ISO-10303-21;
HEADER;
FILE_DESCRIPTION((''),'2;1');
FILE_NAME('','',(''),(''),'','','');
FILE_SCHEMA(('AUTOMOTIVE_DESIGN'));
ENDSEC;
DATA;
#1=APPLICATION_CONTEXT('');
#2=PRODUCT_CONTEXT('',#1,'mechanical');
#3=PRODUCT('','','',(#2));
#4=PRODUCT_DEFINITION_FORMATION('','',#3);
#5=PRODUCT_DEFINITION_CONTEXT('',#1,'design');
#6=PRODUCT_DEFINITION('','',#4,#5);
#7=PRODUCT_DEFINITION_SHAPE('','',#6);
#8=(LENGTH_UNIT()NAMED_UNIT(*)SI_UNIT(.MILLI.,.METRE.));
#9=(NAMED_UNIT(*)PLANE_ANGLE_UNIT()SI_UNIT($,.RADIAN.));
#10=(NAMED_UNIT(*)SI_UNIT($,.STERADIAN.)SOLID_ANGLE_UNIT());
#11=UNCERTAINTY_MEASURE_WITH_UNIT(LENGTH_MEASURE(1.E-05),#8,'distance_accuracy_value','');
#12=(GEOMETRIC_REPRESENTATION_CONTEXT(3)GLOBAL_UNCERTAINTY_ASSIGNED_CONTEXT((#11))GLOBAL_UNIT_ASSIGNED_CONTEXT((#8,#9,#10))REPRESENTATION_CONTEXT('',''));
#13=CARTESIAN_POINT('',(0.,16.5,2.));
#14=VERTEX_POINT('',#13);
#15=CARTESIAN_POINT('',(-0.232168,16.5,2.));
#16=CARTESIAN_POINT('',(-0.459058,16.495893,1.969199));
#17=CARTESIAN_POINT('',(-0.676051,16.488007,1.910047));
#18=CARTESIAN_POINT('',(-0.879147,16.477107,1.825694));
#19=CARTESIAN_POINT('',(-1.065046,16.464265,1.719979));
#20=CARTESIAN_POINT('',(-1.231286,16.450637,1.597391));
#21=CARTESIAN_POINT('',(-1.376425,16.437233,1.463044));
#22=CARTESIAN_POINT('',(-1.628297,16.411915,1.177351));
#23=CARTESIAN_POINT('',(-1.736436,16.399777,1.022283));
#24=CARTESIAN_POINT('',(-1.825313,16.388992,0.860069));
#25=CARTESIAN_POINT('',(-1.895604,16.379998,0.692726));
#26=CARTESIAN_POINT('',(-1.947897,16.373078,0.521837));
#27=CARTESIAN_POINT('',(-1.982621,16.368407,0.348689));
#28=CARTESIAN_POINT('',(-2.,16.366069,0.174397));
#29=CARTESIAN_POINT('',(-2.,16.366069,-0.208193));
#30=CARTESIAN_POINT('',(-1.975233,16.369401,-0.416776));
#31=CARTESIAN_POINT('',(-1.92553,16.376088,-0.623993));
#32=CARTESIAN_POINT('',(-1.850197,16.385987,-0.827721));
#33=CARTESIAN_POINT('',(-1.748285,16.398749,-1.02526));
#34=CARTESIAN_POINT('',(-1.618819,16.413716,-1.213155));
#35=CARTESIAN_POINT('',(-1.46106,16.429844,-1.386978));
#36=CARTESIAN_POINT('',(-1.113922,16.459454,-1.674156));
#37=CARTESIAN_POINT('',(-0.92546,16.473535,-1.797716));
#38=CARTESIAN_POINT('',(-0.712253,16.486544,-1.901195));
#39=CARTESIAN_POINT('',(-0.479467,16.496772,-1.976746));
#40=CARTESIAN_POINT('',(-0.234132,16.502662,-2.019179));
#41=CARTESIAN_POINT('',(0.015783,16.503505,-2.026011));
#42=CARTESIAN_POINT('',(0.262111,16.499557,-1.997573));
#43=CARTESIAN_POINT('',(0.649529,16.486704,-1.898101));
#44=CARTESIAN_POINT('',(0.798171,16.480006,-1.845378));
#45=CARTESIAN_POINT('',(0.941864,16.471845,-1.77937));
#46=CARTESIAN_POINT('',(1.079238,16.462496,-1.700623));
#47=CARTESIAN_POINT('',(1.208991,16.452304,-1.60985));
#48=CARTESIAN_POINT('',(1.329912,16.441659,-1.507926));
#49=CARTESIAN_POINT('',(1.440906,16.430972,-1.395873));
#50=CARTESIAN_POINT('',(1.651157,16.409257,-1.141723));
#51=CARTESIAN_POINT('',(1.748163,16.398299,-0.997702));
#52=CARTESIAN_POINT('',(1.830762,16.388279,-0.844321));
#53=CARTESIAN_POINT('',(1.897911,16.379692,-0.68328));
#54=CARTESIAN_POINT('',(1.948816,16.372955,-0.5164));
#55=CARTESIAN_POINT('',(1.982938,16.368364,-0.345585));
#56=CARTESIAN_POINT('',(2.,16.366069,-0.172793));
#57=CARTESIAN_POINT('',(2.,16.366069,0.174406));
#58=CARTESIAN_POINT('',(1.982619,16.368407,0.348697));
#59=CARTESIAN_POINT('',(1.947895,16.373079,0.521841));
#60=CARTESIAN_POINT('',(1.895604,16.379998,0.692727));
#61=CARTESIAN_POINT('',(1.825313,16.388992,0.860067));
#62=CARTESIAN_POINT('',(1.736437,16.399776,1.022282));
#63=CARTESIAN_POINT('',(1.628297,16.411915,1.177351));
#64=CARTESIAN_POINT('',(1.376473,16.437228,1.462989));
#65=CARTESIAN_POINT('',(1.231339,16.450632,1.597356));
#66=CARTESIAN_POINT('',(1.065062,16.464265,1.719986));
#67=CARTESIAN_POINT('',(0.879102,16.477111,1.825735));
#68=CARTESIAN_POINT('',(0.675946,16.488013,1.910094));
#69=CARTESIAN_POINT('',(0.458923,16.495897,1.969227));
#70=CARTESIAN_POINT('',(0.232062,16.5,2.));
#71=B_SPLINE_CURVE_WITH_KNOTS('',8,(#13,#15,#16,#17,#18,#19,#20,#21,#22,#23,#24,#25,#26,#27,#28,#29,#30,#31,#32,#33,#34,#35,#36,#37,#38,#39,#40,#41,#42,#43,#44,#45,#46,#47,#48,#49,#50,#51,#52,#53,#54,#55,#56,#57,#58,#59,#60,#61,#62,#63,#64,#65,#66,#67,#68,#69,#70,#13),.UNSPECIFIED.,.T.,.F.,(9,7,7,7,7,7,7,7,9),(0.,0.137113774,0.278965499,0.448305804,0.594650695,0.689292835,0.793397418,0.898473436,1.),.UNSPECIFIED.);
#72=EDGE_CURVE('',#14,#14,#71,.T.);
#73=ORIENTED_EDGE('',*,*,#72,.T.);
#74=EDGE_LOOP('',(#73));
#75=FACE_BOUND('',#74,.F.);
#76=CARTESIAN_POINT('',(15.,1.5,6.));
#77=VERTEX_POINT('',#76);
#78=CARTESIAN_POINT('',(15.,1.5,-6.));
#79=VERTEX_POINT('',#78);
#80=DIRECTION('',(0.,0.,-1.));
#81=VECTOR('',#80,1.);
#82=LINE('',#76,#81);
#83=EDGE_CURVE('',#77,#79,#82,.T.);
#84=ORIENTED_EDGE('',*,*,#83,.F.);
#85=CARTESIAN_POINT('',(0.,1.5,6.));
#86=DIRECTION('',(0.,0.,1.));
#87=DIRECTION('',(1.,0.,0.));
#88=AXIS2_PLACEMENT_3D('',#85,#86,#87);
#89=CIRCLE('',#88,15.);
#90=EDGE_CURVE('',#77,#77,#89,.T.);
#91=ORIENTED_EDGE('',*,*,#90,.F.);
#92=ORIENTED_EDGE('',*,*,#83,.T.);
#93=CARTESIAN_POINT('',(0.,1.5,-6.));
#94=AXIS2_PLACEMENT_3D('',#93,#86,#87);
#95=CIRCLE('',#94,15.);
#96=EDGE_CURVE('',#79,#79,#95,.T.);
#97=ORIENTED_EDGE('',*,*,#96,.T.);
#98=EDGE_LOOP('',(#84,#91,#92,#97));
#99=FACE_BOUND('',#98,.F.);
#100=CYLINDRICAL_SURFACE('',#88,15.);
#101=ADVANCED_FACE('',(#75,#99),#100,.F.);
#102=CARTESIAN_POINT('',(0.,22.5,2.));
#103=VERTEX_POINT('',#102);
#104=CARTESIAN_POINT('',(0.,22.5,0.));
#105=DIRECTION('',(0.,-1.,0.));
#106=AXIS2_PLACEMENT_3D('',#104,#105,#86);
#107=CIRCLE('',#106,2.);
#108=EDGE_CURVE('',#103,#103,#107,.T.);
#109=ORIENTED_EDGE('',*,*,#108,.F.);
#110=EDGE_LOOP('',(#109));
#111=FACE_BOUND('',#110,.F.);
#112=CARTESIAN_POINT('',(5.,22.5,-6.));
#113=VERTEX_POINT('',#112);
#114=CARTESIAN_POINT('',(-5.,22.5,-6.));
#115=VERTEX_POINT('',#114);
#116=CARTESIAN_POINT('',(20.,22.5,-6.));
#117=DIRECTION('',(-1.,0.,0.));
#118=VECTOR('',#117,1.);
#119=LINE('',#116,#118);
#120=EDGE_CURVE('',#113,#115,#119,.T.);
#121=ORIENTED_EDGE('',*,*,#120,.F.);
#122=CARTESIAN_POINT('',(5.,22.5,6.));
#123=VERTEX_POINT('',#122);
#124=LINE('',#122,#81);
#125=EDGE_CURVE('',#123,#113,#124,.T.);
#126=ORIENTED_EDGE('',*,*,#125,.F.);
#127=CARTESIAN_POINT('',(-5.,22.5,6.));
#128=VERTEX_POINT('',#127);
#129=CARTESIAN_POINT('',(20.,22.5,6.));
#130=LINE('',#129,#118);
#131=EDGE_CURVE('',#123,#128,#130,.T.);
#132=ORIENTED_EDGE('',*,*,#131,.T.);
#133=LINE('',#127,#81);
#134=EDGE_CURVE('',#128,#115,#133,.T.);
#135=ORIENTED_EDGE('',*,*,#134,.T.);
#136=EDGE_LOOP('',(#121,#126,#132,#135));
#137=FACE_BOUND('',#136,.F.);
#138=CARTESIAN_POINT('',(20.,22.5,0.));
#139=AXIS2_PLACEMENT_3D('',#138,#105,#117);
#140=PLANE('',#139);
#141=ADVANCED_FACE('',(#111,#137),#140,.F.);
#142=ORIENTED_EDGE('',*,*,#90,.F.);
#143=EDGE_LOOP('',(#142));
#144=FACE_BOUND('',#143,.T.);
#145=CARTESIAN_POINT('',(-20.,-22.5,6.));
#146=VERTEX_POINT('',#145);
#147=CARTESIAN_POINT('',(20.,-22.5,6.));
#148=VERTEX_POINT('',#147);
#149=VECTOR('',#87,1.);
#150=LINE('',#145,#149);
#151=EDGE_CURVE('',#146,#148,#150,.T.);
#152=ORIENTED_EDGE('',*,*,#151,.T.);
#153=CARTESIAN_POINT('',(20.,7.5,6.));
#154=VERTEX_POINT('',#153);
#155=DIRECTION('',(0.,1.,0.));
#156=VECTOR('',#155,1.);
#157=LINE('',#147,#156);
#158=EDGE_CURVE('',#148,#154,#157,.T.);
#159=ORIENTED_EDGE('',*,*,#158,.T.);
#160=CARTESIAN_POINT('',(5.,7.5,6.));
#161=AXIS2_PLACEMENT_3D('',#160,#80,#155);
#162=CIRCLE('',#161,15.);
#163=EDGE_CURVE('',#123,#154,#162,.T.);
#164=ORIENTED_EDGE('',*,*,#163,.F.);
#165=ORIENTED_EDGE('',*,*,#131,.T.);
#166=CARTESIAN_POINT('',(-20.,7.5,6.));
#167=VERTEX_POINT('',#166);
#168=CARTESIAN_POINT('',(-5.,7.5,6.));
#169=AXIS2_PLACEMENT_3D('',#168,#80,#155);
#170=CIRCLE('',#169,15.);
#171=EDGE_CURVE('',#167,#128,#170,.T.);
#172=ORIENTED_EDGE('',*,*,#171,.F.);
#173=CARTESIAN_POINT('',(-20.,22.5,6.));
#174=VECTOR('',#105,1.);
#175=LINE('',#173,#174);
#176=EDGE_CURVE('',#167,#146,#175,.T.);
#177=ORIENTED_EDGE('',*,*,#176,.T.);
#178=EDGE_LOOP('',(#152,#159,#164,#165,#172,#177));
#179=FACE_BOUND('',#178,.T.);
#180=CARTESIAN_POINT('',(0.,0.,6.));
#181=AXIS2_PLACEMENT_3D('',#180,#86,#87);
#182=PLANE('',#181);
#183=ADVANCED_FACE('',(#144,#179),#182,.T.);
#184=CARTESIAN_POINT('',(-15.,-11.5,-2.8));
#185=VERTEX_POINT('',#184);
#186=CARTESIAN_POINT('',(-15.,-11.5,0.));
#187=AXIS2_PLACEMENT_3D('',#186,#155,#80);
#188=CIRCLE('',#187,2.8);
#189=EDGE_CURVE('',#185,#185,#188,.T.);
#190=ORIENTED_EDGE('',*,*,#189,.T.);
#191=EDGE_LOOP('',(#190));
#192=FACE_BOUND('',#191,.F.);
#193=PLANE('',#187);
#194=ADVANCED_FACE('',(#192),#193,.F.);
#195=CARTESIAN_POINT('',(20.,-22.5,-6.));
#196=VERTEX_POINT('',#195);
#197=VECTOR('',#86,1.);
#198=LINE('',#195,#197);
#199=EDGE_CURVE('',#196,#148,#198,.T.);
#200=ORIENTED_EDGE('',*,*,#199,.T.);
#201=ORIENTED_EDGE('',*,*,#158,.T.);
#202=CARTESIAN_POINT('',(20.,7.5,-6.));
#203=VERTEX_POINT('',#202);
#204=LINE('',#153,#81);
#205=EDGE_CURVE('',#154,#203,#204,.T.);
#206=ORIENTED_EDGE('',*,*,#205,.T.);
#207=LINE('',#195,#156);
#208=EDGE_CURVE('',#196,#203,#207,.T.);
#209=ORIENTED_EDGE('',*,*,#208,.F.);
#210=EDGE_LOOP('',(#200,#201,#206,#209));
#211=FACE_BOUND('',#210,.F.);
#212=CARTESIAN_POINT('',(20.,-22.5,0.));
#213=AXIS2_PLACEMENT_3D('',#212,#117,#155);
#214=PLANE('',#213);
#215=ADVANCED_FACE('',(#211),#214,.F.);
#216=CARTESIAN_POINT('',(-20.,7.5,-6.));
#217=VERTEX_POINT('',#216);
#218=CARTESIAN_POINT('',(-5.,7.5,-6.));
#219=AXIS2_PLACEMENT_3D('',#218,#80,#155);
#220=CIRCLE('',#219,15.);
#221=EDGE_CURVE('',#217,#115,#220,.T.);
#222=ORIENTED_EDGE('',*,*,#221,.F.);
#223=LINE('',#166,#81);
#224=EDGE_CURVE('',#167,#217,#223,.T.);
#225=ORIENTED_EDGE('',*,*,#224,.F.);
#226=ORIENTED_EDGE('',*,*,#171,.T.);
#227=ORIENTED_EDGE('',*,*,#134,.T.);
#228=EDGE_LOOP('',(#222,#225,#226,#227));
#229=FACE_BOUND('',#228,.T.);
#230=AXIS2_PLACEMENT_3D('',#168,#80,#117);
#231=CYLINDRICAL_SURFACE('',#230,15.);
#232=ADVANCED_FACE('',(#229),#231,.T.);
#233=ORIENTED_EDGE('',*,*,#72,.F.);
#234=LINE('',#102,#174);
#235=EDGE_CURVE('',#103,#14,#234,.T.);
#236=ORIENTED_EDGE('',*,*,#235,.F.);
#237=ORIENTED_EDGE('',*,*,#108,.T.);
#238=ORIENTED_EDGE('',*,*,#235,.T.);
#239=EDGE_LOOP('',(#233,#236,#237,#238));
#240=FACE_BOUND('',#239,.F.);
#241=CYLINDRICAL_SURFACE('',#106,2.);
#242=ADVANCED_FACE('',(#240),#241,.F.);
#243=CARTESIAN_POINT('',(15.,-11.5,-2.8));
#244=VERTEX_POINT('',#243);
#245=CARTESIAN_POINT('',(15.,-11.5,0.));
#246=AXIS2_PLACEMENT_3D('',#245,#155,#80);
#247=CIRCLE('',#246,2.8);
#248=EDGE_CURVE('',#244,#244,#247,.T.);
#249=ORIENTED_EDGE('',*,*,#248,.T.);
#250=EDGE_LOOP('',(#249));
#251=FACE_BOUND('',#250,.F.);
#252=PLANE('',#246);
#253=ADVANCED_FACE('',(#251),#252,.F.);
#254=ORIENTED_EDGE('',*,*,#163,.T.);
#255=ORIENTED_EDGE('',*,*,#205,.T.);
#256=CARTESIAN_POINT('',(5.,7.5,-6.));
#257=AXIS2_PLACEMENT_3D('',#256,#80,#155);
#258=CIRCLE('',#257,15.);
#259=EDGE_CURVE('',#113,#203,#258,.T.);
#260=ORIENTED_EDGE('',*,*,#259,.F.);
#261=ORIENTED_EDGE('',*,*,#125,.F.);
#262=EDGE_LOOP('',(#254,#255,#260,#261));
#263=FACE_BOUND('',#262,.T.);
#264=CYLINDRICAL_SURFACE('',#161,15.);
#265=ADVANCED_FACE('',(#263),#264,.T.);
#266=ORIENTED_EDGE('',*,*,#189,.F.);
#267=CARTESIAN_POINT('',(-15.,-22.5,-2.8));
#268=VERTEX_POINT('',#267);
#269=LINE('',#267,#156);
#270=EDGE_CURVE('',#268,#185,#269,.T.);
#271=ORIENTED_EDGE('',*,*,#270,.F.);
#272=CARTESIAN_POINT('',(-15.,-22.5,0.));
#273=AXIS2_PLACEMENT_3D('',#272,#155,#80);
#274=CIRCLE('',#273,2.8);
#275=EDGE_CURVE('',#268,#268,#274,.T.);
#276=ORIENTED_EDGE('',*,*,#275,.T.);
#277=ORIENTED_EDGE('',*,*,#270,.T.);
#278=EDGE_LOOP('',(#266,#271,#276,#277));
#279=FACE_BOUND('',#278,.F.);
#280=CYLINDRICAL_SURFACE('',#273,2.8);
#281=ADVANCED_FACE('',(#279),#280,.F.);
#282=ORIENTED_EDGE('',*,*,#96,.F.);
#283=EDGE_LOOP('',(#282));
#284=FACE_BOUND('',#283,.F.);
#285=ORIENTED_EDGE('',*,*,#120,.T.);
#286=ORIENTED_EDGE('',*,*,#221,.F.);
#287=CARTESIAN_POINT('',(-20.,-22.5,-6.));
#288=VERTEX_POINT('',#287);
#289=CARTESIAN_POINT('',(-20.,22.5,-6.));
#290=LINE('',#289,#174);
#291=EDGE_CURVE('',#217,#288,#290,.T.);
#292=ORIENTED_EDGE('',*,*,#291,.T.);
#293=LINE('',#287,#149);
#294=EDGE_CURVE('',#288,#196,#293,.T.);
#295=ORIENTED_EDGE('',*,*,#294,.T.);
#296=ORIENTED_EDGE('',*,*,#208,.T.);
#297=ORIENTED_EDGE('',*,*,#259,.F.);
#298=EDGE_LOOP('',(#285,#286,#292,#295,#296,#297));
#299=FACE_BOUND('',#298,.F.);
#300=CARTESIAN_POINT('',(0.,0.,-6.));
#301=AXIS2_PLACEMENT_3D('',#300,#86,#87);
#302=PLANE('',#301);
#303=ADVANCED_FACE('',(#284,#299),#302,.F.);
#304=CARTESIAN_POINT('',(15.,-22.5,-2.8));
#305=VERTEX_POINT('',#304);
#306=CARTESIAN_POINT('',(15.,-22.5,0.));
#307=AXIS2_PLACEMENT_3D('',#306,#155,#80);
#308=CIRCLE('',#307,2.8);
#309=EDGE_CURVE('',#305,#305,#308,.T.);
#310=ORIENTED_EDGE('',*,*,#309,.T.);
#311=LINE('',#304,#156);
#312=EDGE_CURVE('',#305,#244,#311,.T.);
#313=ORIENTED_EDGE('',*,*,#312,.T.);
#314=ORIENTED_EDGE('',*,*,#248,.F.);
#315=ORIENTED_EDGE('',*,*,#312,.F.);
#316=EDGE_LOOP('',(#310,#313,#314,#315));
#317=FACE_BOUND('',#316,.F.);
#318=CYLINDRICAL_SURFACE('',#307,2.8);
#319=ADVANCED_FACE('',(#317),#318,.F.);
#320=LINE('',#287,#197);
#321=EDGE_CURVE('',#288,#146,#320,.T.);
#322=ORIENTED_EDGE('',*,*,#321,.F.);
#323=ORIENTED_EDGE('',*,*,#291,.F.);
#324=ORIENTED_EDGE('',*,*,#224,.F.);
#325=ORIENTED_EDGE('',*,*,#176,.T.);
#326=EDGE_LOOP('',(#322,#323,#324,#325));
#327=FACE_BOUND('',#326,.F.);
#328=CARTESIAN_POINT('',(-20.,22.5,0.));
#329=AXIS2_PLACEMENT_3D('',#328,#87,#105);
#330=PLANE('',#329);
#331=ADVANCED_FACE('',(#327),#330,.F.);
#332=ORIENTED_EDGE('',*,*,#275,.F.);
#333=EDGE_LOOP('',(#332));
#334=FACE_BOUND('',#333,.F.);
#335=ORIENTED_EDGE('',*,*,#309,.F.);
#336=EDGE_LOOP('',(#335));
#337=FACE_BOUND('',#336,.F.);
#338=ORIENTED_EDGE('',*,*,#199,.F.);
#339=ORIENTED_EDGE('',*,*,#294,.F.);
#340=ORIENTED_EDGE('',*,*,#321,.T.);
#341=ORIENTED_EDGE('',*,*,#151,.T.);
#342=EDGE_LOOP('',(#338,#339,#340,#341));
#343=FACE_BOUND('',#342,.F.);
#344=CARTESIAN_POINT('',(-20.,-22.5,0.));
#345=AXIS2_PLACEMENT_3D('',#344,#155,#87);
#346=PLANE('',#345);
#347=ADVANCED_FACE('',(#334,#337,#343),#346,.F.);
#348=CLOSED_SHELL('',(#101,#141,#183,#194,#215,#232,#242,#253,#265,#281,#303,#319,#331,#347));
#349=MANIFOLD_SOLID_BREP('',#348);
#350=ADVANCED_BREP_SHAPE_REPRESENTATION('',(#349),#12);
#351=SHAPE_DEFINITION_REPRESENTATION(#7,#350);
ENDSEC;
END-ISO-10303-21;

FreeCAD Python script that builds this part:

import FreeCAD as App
import Part
import Sketcher

V = App.Vector


def edges_at(feature, points):
    """Names of the edges that pass closest to the given points."""
    edges = feature.Shape.Edges
    near = lambda p: min(range(len(edges)), key=lambda i: edges[i].distToShape(Part.Vertex(*p))[0])
    return sorted({f"Edge{near(p) + 1}" for p in points})


def add_polygon(sketch, points):
    """Adds a closed chain of lines whose ends are joined by coincident constraints."""
    first, n = sketch.GeometryCount, len(points)
    for a, b in zip(points, points[1:] + points[:1]):
        sketch.addGeometry(Part.LineSegment(App.Vector(*a, 0), App.Vector(*b, 0)), False)
    for i in range(n):
        sketch.addConstraint(Sketcher.Constraint("Coincident", first + i, 2, first + (i + 1) % n, 1))

doc = App.newDocument("Part")
params = doc.addObject("Spreadsheet::Sheet", "Params")
for row, (alias, value) in enumerate([
    ("sketch1_width", "40 mm"),
    ("sketch1_height", "45 mm"),
    ("pad1_length", "12 mm"),
    ("sketch2_diameter", "30 mm"),
    ("sketch3_diameter", "5.6 mm"),
    ("hole_diameter", "5.6 mm"),
    ("hole_depth", "11 mm"),
    ("sketch4_diameter", "4 mm"),
    ("hole2_diameter", "4 mm"),
    ("hole2_depth", "11 mm"),
    ("fillet_radius", "15 mm"),
], start=1):
    params.set(f"A{row}", alias)
    params.set(f"B{row}", "=" + value)
    params.setAlias(f"B{row}", alias)

body = doc.addObject("PartDesign::Body", "Body")

sketch1 = body.newObject("Sketcher::SketchObject", "Sketch")
sketch1.AttachmentSupport = (doc.getObject("XY_Plane"), [""])
sketch1.MapMode = "FlatFace"
add_polygon(sketch1, [(-20, 22), (-20, -22), (20, -22), (20, 22)])
sketch1.addConstraint(Sketcher.Constraint("Vertical", 0))
sketch1.addConstraint(Sketcher.Constraint("Horizontal", 1))
sketch1.addConstraint(Sketcher.Constraint("Vertical", 2))
sketch1.addConstraint(Sketcher.Constraint("Horizontal", 3))
sketch1.addConstraint(Sketcher.Constraint("Symmetric", 0, 2, 2, 2, -1, 1))
sketch1.addConstraint(Sketcher.Constraint("DistanceX", 1, 1, 1, 2, 40.0))
sketch1.addConstraint(Sketcher.Constraint("DistanceY", 0, 2, 0, 1, 45.0))
sketch1.setExpression("Constraints[9]", "Params.sketch1_width")
sketch1.setExpression("Constraints[10]", "Params.sketch1_height")
pad1 = body.newObject("PartDesign::Pad", "Pad")
pad1.Profile = sketch1
pad1.setExpression("Length", "Params.pad1_length")
pad1.Midplane = True

sketch2 = body.newObject("Sketcher::SketchObject", "Sketch001")
sketch2.AttachmentSupport = (doc.getObject("XY_Plane"), [""])
sketch2.MapMode = "FlatFace"
sketch2.AttachmentOffset = App.Placement(V(0, 0, 6), App.Rotation())
sketch2.addGeometry(Part.Circle(V(0, 2, 0), V(0, 0, 1), 15), False)
sketch2.addConstraint(Sketcher.Constraint("PointOnObject", 0, 3, -2))
sketch2.addConstraint(Sketcher.Constraint("Diameter", 0, 30.0))
sketch2.addConstraint(Sketcher.Constraint("DistanceY", -1, 1, 0, 3, 1.5))
sketch2.setExpression("Constraints[1]", "Params.sketch2_diameter")
pocket1 = body.newObject("PartDesign::Pocket", "Pocket")
pocket1.Profile = sketch2
pocket1.Type = "ThroughAll"

sketch3 = body.newObject("Sketcher::SketchObject", "Sketch002")
sketch3.AttachmentSupport = (doc.getObject("XZ_Plane"), [""])
sketch3.MapMode = "FlatFace"
sketch3.AttachmentOffset = App.Placement(V(0, 0, 22.5), App.Rotation())
sketch3.addGeometry(Part.Circle(V(-15, 0, 0), V(0, 0, 1), 2.8), False)
sketch3.addGeometry(Part.Circle(V(15, 0, 0), V(0, 0, 1), 2.8), False)
sketch3.addConstraint(Sketcher.Constraint("Equal", 0, 1))
sketch3.addConstraint(Sketcher.Constraint("Symmetric", 0, 3, 1, 3, -1, 1))
sketch3.addConstraint(Sketcher.Constraint("PointOnObject", 0, 3, -1))
sketch3.addConstraint(Sketcher.Constraint("Diameter", 0, 5.6))
sketch3.addConstraint(Sketcher.Constraint("DistanceX", 0, 3, -1, 1, 15.0))
sketch3.setExpression("Constraints[3]", "Params.sketch3_diameter")
doc.recompute()
hole = body.newObject("PartDesign::Hole", "Hole")
hole.Profile = sketch3
hole.ThreadType = "None"
hole.setExpression("Diameter", "Params.hole_diameter")
hole.DepthType = "Dimension"
hole.setExpression("Depth", "Params.hole_depth")
hole.DrillPoint = "Flat"

sketch4 = body.newObject("Sketcher::SketchObject", "Sketch003")
sketch4.AttachmentSupport = (doc.getObject("XZ_Plane"), [""])
sketch4.MapMode = "FlatFace"
sketch4.AttachmentOffset = App.Placement(V(0, 0, -22.5), App.Rotation())
sketch4.addGeometry(Part.Circle(V(0, 0, 0), V(0, 0, 1), 2), False)
sketch4.addConstraint(Sketcher.Constraint("Coincident", 0, 3, -1, 1))
sketch4.addConstraint(Sketcher.Constraint("Diameter", 0, 4.0))
sketch4.setExpression("Constraints[1]", "Params.sketch4_diameter")
doc.recompute()
hole2 = body.newObject("PartDesign::Hole", "Hole001")
hole2.Profile = sketch4
hole2.ThreadType = "None"
hole2.setExpression("Diameter", "Params.hole2_diameter")
hole2.DepthType = "Dimension"
hole2.setExpression("Depth", "Params.hole2_depth")
hole2.DrillPoint = "Flat"
hole2.Reversed = True
doc.recompute()

fillet = body.newObject("PartDesign::Fillet", "Fillet")
fillet.Base = (hole2, edges_at(hole2, [(-20, 22.5, 0), (20, 22.5, 0)]))
fillet.setExpression("Radius", "Params.fillet_radius")

doc.recompute()
